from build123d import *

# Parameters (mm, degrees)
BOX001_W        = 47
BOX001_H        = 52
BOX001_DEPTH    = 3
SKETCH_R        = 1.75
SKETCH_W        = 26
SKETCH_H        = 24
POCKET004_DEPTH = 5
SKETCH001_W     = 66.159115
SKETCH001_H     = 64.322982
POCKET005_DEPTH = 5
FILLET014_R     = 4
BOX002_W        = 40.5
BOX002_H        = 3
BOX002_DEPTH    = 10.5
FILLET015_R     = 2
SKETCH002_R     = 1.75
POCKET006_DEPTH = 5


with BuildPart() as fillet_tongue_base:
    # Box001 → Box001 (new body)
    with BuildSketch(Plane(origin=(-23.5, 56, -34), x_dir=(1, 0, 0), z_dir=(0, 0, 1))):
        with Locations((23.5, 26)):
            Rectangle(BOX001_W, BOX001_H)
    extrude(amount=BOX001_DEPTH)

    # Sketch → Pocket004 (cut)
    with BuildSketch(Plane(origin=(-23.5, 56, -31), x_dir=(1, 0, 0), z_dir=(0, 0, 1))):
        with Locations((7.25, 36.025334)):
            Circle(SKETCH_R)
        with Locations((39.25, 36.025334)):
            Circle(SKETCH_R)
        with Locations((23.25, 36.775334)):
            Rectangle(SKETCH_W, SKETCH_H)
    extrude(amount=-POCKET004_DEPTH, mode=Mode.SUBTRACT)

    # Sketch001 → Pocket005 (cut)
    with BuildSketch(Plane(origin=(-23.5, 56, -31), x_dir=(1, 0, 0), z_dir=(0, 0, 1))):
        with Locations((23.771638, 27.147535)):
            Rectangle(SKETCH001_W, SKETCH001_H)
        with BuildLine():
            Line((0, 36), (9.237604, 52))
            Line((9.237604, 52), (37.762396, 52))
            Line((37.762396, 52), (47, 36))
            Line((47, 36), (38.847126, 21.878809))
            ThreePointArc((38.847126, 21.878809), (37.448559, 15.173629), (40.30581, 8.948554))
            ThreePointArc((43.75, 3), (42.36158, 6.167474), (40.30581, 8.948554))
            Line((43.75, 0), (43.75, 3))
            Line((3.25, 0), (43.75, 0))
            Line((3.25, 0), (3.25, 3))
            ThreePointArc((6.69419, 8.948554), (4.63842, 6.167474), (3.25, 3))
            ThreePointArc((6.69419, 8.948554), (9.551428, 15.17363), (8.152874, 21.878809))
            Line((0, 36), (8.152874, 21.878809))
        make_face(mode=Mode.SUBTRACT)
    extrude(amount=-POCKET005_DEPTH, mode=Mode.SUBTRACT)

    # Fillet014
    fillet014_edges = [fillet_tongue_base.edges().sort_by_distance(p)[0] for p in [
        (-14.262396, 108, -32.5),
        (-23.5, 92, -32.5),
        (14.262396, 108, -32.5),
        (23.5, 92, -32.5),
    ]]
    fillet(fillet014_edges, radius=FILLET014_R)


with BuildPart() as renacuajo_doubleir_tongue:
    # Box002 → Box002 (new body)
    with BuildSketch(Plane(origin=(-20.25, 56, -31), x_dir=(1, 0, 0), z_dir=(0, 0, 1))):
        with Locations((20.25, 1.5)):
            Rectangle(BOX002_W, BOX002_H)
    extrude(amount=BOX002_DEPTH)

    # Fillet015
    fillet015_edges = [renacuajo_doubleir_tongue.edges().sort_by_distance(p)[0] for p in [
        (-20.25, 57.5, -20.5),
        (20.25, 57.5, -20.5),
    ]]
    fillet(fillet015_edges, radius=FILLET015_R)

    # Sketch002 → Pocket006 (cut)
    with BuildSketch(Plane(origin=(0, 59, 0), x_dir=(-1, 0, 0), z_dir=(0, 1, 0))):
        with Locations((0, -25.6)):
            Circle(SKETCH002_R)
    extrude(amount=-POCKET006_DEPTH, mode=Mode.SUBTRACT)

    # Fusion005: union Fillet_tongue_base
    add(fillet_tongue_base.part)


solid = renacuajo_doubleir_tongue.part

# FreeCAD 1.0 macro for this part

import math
import FreeCAD as App
import Part
import Sketcher

V = App.Vector


def edges_at(feature, points):
    """Names of the edges that pass closest to the given points."""
    edges = feature.Shape.Edges
    near = lambda p: min(range(len(edges)), key=lambda i: edges[i].distToShape(Part.Vertex(*p))[0])
    return sorted({f"Edge{near(p) + 1}" for p in points})


def add_polygon(sketch, points):
    """Adds a closed chain of lines whose ends are joined by coincident constraints."""
    first, n = sketch.GeometryCount, len(points)
    for a, b in zip(points, points[1:] + points[:1]):
        sketch.addGeometry(Part.LineSegment(App.Vector(*a, 0), App.Vector(*b, 0)), False)
    for i in range(n):
        sketch.addConstraint(Sketcher.Constraint("Coincident", first + i, 2, first + (i + 1) % n, 1))

doc = App.newDocument("Part")
body = doc.addObject("PartDesign::Body", "Body")

# Sketch on XY plane
sketch1 = body.newObject("Sketcher::SketchObject", "Sketch")
sketch1.AttachmentSupport = (doc.getObject("XY_Plane"), [""])
sketch1.MapMode = "FlatFace"
sketch1.AttachmentOffset = App.Placement(V(0, 0, -34), App.Rotation())
add_polygon(sketch1, [(-23.5, 108), (-23.5, 56), (23.5, 56), (23.5, 108)])  # lines 0-3
sketch1.addConstraint([
    Sketcher.Constraint("Vertical", 0),
    Sketcher.Constraint("Horizontal", 1),
    Sketcher.Constraint("Vertical", 2),
    Sketcher.Constraint("Horizontal", 3),
    Sketcher.Constraint("DistanceX", 1, 1, 1, 2, 47.0),
    Sketcher.Constraint("DistanceY", 0, 2, 0, 1, 52.0),
    Sketcher.Constraint("DistanceY", -1, 1, 0, 2, 56.0),
    Sketcher.Constraint("DistanceX", 0, 2, -1, 1, 23.5),
])
pad1 = body.newObject("PartDesign::Pad", "Pad")
pad1.Profile = sketch1
pad1.Length = 3

# Sketch on XY plane
sketch2 = body.newObject("Sketcher::SketchObject", "Sketch001")
sketch2.AttachmentSupport = (doc.getObject("XY_Plane"), [""])
sketch2.MapMode = "FlatFace"
sketch2.AttachmentOffset = App.Placement(V(0, 0, -31), App.Rotation())
sketch2.addGeometry(Part.Circle(V(-16.25, 92.025334, 0), V(0, 0, 1), 1.75), False)  # 0
sketch2.addGeometry(Part.Circle(V(15.75, 92.025334, 0), V(0, 0, 1), 1.75), False)  # 1
add_polygon(sketch2, [(-13.25, 104.775334), (-13.25, 80.775334), (12.75, 80.775334), (12.75, 104.775334)])  # lines 2-5
sketch2.addConstraint([
    Sketcher.Constraint("Vertical", 2),
    Sketcher.Constraint("Horizontal", 3),
    Sketcher.Constraint("Vertical", 4),
    Sketcher.Constraint("Horizontal", 5),
    Sketcher.Constraint("Equal", 0, 1),
    Sketcher.Constraint("Horizontal", 0, 3, 1, 3),
    Sketcher.Constraint("Diameter", 0, 3.5),
    Sketcher.Constraint("DistanceX", 3, 1, 3, 2, 26.0),
    Sketcher.Constraint("DistanceY", 2, 2, 2, 1, 24.0),
    Sketcher.Constraint("DistanceX", 0, 3, 1, 3, 32.0),
    Sketcher.Constraint("DistanceX", 0, 3, 2, 2, 3.0),
    Sketcher.Constraint("DistanceX", 0, 3, -1, 1, 16.25),
    Sketcher.Constraint("DistanceY", 2, 2, 0, 3, 11.25),
    Sketcher.Constraint("DistanceY", -1, 1, 0, 3, 92.025334),
])
pocket1 = body.newObject("PartDesign::Pocket", "Pocket")
pocket1.Profile = sketch2
pocket1.Length = 5

# Sketch on XY plane
sketch3 = body.newObject("Sketcher::SketchObject", "Sketch002")
sketch3.AttachmentSupport = (doc.getObject("XY_Plane"), [""])
sketch3.MapMode = "FlatFace"
sketch3.AttachmentOffset = App.Placement(V(0, 0, -31), App.Rotation())
add_polygon(sketch3, [(-32.807919, 115.309026), (-32.807919, 50.986044), (33.351196, 50.986044), (33.351196, 115.309026)])  # lines 0-3
sketch3.addGeometry(Part.LineSegment(V(-15.347126, 77.878809, 0), V(-23.5, 92, 0)), False)  # 4
sketch3.addGeometry(Part.LineSegment(V(-23.5, 92, 0), V(-14.262396, 108, 0)), False)  # 5
sketch3.addGeometry(Part.LineSegment(V(-14.262396, 108, 0), V(14.262396, 108, 0)), False)  # 6
sketch3.addGeometry(Part.LineSegment(V(14.262396, 108, 0), V(23.5, 92, 0)), False)  # 7
sketch3.addGeometry(Part.LineSegment(V(23.5, 92, 0), V(15.347126, 77.878809, 0)), False)  # 8
sketch3.addGeometry(Part.ArcOfCircle(Part.Circle(V(24.833863, 72.401618, 0), V(0, 0, 1), 10.95435), math.radians(149.999905), math.radians(222.872938)), False)  # 9
sketch3.addGeometry(Part.ArcOfCircle(Part.Circle(V(5.438852, 54.395766, 0), V(0, 0, 1), 15.510289), math.radians(17.268524), math.radians(42.87283)), False)  # 10
sketch3.addGeometry(Part.LineSegment(V(20.25, 59, 0), V(20.25, 56, 0)), False)  # 11
sketch3.addGeometry(Part.LineSegment(V(20.25, 56, 0), V(-20.25, 56, 0)), False)  # 12
sketch3.addGeometry(Part.LineSegment(V(-20.25, 56, 0), V(-20.25, 59, 0)), False)  # 13
sketch3.addGeometry(Part.ArcOfCircle(Part.Circle(V(-5.438852, 54.395766, 0), V(0, 0, 1), 15.510289), math.radians(137.12717), math.radians(162.731476)), False)  # 14
sketch3.addGeometry(Part.ArcOfCircle(Part.Circle(V(-24.833929, 72.401626, 0), V(0, 0, 1), 10.954404), math.radians(-42.872731), math.radians(29.999888)), False)  # 15
sketch3.addConstraint([
    Sketcher.Constraint("Coincident", 4, 2, 5, 1),
    Sketcher.Constraint("Coincident", 5, 2, 6, 1),
    Sketcher.Constraint("Coincident", 6, 2, 7, 1),
    Sketcher.Constraint("Coincident", 7, 2, 8, 1),
    Sketcher.Constraint("Coincident", 8, 2, 9, 1),
    Sketcher.Constraint("Coincident", 9, 2, 10, 2),
    Sketcher.Constraint("Coincident", 10, 1, 11, 1),
    Sketcher.Constraint("Coincident", 11, 2, 12, 1),
    Sketcher.Constraint("Coincident", 12, 2, 13, 1),
    Sketcher.Constraint("Coincident", 13, 2, 14, 2),
    Sketcher.Constraint("Coincident", 14, 1, 15, 1),
    Sketcher.Constraint("Coincident", 15, 2, 4, 1),
    Sketcher.Constraint("Vertical", 0),
    Sketcher.Constraint("Horizontal", 1),
    Sketcher.Constraint("Vertical", 2),
    Sketcher.Constraint("Horizontal", 3),
    Sketcher.Constraint("Horizontal", 6),
    Sketcher.Constraint("Vertical", 11),
    Sketcher.Constraint("Horizontal", 12),
    Sketcher.Constraint("Vertical", 13),
    Sketcher.Constraint("DistanceY", 11, 2, 11, 1, 3.0),
    Sketcher.Constraint("DistanceY", 13, 1, 13, 2, 3.0),
    Sketcher.Constraint("DistanceX", 12, 2, 12, 1, 40.5),
    Sketcher.Constraint("DistanceY", -1, 1, 4, 2, 92.0),
    Sketcher.Constraint("DistanceY", -1, 1, 5, 2, 108.0),
    Sketcher.Constraint("DistanceY", -1, 1, 7, 2, 92.0),
    Sketcher.Constraint("DistanceY", -1, 1, 10, 1, 59.0),
    Sketcher.Constraint("DistanceX", 4, 2, -1, 1, 23.5),
    Sketcher.Constraint("DistanceX", -1, 1, 7, 2, 23.5),
    Sketcher.Constraint("DistanceX", -1, 1, 10, 1, 20.25),
    Sketcher.Constraint("Radius", 9, 10.95435),
    Sketcher.Constraint("Radius", 10, 15.510289),
    Sketcher.Constraint("Radius", 14, 15.510289),
    Sketcher.Constraint("Radius", 15, 10.954404),
    Sketcher.Constraint("DistanceY", 0, 2, 0, 1, 64.322982),
    Sketcher.Constraint("DistanceY", 15, 3, 2, 2, 42.9074),
    Sketcher.Constraint("DistanceX", 6, 2, 2, 2, 19.0888),
    Sketcher.Constraint("Distance", 5, 18.475208),
    Sketcher.Constraint("Distance", 7, 18.475208),
    Sketcher.Constraint("DistanceX", 1, 1, 1, 2, 66.159115),
    Sketcher.Constraint("DistanceY", -1, 1, 9, 3, 72.401618),
    Sketcher.Constraint("DistanceX", 15, 3, -1, 1, 24.833929),
    Sketcher.Constraint("DistanceY", -1, 1, 8, 2, 77.878809),
    Sketcher.Constraint("DistanceX", -1, 1, 9, 2, 16.80581),
    Sketcher.Constraint("DistanceX", 14, 1, -1, 1, 16.80581),
    Sketcher.Constraint("DistanceY", -1, 1, 15, 2, 77.878809),
    Sketcher.Constraint("DistanceX", 10, 3, 9, 3, 19.395011),
    Sketcher.Constraint("DistanceY", 14, 3, 15, 3, 18.00586),
])
pocket2 = body.newObject("PartDesign::Pocket", "Pocket001")
pocket2.Profile = sketch3
pocket2.Length = 5
doc.recompute()

fillet = body.newObject("PartDesign::Fillet", "Fillet")
fillet.Base = (pocket2, edges_at(pocket2, [
    (-14.262, 108, -32.5),
    (-23.5, 92, -32.5),
    (14.262, 108, -32.5),
    (23.5, 92, -32.5),
]))
fillet.Radius = 4
body2 = doc.addObject("PartDesign::Body", "Body001")

# Sketch on XY plane
sketch4 = body2.newObject("Sketcher::SketchObject", "Sketch003")
sketch4.AttachmentSupport = (doc.getObject("XY_Plane001"), [""])
sketch4.MapMode = "FlatFace"
sketch4.AttachmentOffset = App.Placement(V(0, 0, -31), App.Rotation())
add_polygon(sketch4, [(-20.25, 59), (-20.25, 56), (20.25, 56), (20.25, 59)])  # lines 0-3
sketch4.addConstraint([
    Sketcher.Constraint("Vertical", 0),
    Sketcher.Constraint("Horizontal", 1),
    Sketcher.Constraint("Vertical", 2),
    Sketcher.Constraint("Horizontal", 3),
    Sketcher.Constraint("DistanceY", 0, 2, 0, 1, 3.0),
    Sketcher.Constraint("DistanceX", 1, 1, 1, 2, 40.5),
    Sketcher.Constraint("DistanceY", -1, 1, 0, 2, 56.0),
    Sketcher.Constraint("DistanceX", 0, 2, -1, 1, 20.25),
])
pad2 = body2.newObject("PartDesign::Pad", "Pad001")
pad2.Profile = sketch4
pad2.Length = 10.5
doc.recompute()

fillet2 = body2.newObject("PartDesign::Fillet", "Fillet001")
fillet2.Base = (pad2, edges_at(pad2, [(-20.25, 57.5, -20.5), (20.25, 57.5, -20.5)]))
fillet2.Radius = 2

# Sketch on XZ plane
sketch5 = body2.newObject("Sketcher::SketchObject", "Sketch004")
sketch5.AttachmentSupport = (doc.getObject("XZ_Plane001"), [""])
sketch5.MapMode = "FlatFace"
sketch5.AttachmentOffset = App.Placement(V(0, 0, -59), App.Rotation())
sketch5.addGeometry(Part.Circle(V(0, -25.6, 0), V(0, 0, 1), 1.75), False)
sketch5.addConstraint([
    Sketcher.Constraint("PointOnObject", 0, 3, -2),
    Sketcher.Constraint("Diameter", 0, 3.5),
    Sketcher.Constraint("DistanceY", 0, 3, -1, 1, 25.6),
])
pocket3 = body2.newObject("PartDesign::Pocket", "Pocket002")
pocket3.Profile = sketch5
pocket3.Length = 5
pocket3.Reversed = True
doc.recompute()

boolean = body2.newObject("PartDesign::Boolean", "Boolean")
boolean.Type = "Fuse"
boolean.addObjects([body])

doc.recompute()
